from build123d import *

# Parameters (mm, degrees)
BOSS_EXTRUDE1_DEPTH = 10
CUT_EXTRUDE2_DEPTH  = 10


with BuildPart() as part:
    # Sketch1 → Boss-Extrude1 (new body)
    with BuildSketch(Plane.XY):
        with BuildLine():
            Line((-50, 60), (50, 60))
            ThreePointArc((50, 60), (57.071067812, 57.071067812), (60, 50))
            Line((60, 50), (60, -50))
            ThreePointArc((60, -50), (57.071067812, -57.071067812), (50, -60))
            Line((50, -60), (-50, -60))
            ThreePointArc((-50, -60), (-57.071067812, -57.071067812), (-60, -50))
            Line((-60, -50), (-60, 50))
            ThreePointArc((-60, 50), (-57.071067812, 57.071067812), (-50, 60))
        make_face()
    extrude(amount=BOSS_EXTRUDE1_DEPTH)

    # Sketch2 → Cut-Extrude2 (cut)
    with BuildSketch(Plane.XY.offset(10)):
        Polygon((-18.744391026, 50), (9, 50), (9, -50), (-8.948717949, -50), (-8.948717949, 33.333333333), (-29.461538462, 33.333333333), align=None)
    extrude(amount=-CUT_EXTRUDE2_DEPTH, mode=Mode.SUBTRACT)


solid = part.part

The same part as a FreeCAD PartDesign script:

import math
import FreeCAD as App
import Part
import Sketcher
Q = App.Units.Quantity


def add_polygon(sketch, points):
    """Adds a closed chain of lines whose ends are joined by coincident constraints."""
    first, n = sketch.GeometryCount, len(points)
    for a, b in zip(points, points[1:] + points[:1]):
        sketch.addGeometry(Part.LineSegment(App.Vector(*a, 0), App.Vector(*b, 0)), False)
    for i in range(n):
        sketch.addConstraint(Sketcher.Constraint("Coincident", first + i, 2, first + (i + 1) % n, 1))

doc = App.newDocument("Part")
body = doc.addObject("PartDesign::Body", "Body")

sketch1 = doc.addObject("Sketcher::SketchObject", "Sketch")
body.addObject(sketch1)
sketch1.AttachmentSupport = (doc.XY_Plane, [""])
sketch1.MapMode = "FlatFace"
sketch1.addGeometry([
    Part.LineSegment(App.Vector(50, 60, 0), App.Vector(-50, 60, 0)),
    Part.ArcOfCircle(Part.Circle(App.Vector(-50, 50, 0), App.Vector(0, 0, 1), 10), math.radians(90), math.radians(180)),
    Part.LineSegment(App.Vector(-60, 50, 0), App.Vector(-60, -50, 0)),
    Part.ArcOfCircle(Part.Circle(App.Vector(-50, -50, 0), App.Vector(0, 0, 1), 10), math.radians(180), math.radians(270)),
    Part.LineSegment(App.Vector(-50, -60, 0), App.Vector(50, -60, 0)),
    Part.ArcOfCircle(Part.Circle(App.Vector(50, -50, 0), App.Vector(0, 0, 1), 10), math.radians(-90), math.radians(0)),
    Part.LineSegment(App.Vector(60, -50, 0), App.Vector(60, 50, 0)),
    Part.ArcOfCircle(Part.Circle(App.Vector(50, 50, 0), App.Vector(0, 0, 1), 10), math.radians(0), math.radians(90)),
], False)
sketch1.addConstraint([
    Sketcher.Constraint("Tangent", 0, 2, 1, 1),
    Sketcher.Constraint("Tangent", 1, 2, 2, 1),
    Sketcher.Constraint("Tangent", 2, 2, 3, 1),
    Sketcher.Constraint("Tangent", 3, 2, 4, 1),
    Sketcher.Constraint("Tangent", 4, 2, 5, 1),
    Sketcher.Constraint("Tangent", 5, 2, 6, 1),
    Sketcher.Constraint("Tangent", 6, 2, 7, 1),
    Sketcher.Constraint("Tangent", 7, 2, 0, 1),
    Sketcher.Constraint("Horizontal", 0),
    Sketcher.Constraint("Vertical", 2),
    Sketcher.Constraint("Horizontal", 4),
    Sketcher.Constraint("Vertical", 6),
    Sketcher.Constraint("Equal", 1, 3),
    Sketcher.Constraint("Equal", 3, 5),
    Sketcher.Constraint("Equal", 5, 7),
    Sketcher.Constraint("Symmetric", 1, 3, 5, 3, -1, 1),
    Sketcher.Constraint("Equal", 4, 2),
    Sketcher.Constraint("Radius", 1, Q("10 mm")),
    Sketcher.Constraint("DistanceX", 0, 2, 0, 1, Q("100 mm")),
])
pad1 = doc.addObject("PartDesign::Pad", "Pad")
body.addObject(pad1)
pad1.Profile = sketch1
pad1.Length = 10

sketch2 = doc.addObject("Sketcher::SketchObject", "Sketch001")
body.addObject(sketch2)
sketch2.AttachmentSupport = (doc.XY_Plane, [""])
sketch2.MapMode = "FlatFace"
sketch2.AttachmentOffset = App.Placement(App.Vector(0, 0, 10), App.Rotation())
add_polygon(sketch2, [(9, 50), (-18.744391, 50), (-29.461538, 33.333333), (-8.948718, 33.333333), (-8.948718, -50), (9, -50)])
sketch2.addConstraint([
    Sketcher.Constraint("Horizontal", 0),
    Sketcher.Constraint("Horizontal", 2),
    Sketcher.Constraint("Vertical", 3),
    Sketcher.Constraint("Horizontal", 4),
    Sketcher.Constraint("Vertical", 5),
    Sketcher.Constraint("DistanceY", 5, 1, 5, 2, Q("100 mm")),
    Sketcher.Constraint("DistanceY", -1, 1, 0, 2, Q("50 mm")),
    Sketcher.Constraint("DistanceX", -1, 1, 4, 2, Q("9 mm")),
    Sketcher.Constraint("DistanceX", 0, 2, 0, 1, Q("27.744391 mm")),
    Sketcher.Constraint("DistanceX", 2, 1, 2, 2, Q("20.512821 mm")),
    Sketcher.Constraint("Distance", 1, Q("19.81502 mm")),
    Sketcher.Constraint("DistanceX", 4, 1, 4, 2, Q("17.948718 mm")),
])
pocket1 = doc.addObject("PartDesign::Pocket", "Pocket")
body.addObject(pocket1)
pocket1.Profile = sketch2
pocket1.Length = 10

doc.recompute()
